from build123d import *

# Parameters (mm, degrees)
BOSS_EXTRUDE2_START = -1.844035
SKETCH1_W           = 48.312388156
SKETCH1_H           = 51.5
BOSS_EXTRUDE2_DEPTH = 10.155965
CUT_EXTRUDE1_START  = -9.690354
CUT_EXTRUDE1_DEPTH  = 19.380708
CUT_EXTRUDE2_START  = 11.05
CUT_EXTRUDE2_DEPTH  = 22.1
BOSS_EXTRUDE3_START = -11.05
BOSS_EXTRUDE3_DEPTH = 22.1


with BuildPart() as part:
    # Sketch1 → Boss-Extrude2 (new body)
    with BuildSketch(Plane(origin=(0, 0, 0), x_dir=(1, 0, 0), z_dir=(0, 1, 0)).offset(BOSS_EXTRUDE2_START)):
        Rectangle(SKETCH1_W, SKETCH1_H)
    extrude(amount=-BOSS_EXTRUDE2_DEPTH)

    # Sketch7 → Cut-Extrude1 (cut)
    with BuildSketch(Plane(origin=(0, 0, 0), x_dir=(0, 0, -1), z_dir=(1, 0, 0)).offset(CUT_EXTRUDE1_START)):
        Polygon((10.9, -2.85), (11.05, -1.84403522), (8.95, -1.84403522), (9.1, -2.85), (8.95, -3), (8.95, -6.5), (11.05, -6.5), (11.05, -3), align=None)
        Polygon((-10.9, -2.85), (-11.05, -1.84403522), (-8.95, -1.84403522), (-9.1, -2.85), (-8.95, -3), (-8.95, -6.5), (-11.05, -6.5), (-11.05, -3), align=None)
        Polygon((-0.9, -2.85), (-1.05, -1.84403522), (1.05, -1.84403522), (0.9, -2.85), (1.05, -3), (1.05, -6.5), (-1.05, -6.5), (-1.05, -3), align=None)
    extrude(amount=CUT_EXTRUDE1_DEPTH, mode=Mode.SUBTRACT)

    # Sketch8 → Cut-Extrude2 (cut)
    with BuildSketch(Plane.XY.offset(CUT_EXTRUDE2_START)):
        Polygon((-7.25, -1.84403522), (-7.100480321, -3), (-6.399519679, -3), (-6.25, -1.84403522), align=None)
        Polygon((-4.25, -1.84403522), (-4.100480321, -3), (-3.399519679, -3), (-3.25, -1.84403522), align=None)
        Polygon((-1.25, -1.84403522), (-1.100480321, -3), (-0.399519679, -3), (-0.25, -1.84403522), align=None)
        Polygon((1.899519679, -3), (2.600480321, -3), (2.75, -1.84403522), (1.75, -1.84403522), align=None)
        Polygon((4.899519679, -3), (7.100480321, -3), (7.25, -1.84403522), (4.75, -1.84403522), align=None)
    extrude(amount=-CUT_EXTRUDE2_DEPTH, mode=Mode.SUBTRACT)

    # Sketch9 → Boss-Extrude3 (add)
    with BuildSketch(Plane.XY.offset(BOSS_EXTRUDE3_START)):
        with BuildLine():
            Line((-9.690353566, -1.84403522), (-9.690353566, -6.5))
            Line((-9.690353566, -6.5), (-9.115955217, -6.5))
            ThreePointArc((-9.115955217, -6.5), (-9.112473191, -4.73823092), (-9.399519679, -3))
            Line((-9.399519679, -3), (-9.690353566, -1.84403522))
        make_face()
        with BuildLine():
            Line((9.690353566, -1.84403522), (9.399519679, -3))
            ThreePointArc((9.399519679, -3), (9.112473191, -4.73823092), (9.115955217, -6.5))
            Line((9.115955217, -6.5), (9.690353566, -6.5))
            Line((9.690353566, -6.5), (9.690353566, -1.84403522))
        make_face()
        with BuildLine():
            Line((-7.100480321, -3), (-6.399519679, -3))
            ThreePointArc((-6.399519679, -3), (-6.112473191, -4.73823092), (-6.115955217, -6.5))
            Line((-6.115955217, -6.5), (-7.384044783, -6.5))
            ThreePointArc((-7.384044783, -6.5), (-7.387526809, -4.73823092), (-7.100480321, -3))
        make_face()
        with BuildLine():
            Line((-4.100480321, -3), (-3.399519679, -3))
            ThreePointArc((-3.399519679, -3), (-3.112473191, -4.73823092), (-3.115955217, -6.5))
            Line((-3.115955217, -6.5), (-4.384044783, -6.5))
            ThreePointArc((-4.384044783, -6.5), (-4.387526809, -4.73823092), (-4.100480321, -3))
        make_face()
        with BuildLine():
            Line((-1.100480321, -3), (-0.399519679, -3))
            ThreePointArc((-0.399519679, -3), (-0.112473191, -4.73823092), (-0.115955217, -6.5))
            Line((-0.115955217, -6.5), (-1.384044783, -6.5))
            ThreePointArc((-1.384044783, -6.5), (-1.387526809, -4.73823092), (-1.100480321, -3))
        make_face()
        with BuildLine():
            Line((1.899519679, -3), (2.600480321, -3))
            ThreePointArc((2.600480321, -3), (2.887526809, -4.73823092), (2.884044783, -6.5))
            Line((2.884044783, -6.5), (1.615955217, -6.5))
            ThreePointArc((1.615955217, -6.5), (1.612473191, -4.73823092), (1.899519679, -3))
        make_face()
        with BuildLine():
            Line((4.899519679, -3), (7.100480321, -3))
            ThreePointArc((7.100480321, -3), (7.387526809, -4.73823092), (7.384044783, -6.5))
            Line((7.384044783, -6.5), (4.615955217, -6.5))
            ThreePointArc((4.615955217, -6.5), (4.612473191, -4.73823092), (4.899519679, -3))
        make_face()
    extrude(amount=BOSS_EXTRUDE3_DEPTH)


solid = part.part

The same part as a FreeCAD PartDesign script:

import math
import FreeCAD as App
import Part
import Sketcher

V = App.Vector

doc = App.newDocument("Part")
body = doc.addObject("PartDesign::Body", "Body")

# Sketch on XZ plane
sketch1 = body.newObject("Sketcher::SketchObject", "Sketch")
sketch1.AttachmentSupport = (doc.getObject("XZ_Plane"), [""])
sketch1.MapMode = "FlatFace"
sketch1.AttachmentOffset = App.Placement(V(0, 0, 1.844035), App.Rotation())
sketch1.addGeometry(Part.LineSegment(V(-24, -26, 0), V(-24, 26, 0)), False)
sketch1.addGeometry(Part.LineSegment(V(-24, 26, 0), V(24, 26, 0)), False)
sketch1.addGeometry(Part.LineSegment(V(24, 26, 0), V(24, -26, 0)), False)
sketch1.addGeometry(Part.LineSegment(V(24, -26, 0), V(-24, -26, 0)), False)
sketch1.addConstraint(Sketcher.Constraint("Coincident", 0, 2, 1, 1))
sketch1.addConstraint(Sketcher.Constraint("Coincident", 1, 2, 2, 1))
sketch1.addConstraint(Sketcher.Constraint("Coincident", 2, 2, 3, 1))
sketch1.addConstraint(Sketcher.Constraint("Coincident", 3, 2, 0, 1))
sketch1.addConstraint(Sketcher.Constraint("Vertical", 0))
sketch1.addConstraint(Sketcher.Constraint("Horizontal", 1))
sketch1.addConstraint(Sketcher.Constraint("Vertical", 2))
sketch1.addConstraint(Sketcher.Constraint("Horizontal", 3))
sketch1.addConstraint(Sketcher.Constraint("Symmetric", 0, 2, 2, 2, -1, 1))
sketch1.addConstraint(Sketcher.Constraint("DistanceY", 0, 1, 0, 2, 51.5))
sketch1.addConstraint(Sketcher.Constraint("DistanceX", 1, 1, 1, 2, 48.312388))
pad1 = body.newObject("PartDesign::Pad", "Pad")
pad1.Profile = sketch1
pad1.Length = 10.155965

# Sketch on YZ plane
sketch2 = body.newObject("Sketcher::SketchObject", "Sketch001")
sketch2.AttachmentSupport = (doc.getObject("YZ_Plane"), [""])
sketch2.MapMode = "FlatFace"
sketch2.AttachmentOffset = App.Placement(V(0, 0, -9.690354), App.Rotation())
sketch2.addGeometry(Part.LineSegment(V(-2.85, -10.9, 0), V(-1.84, -11.05, 0)), False)
sketch2.addGeometry(Part.LineSegment(V(-1.84, -11.05, 0), V(-1.84, -8.95, 0)), False)
sketch2.addGeometry(Part.LineSegment(V(-1.84, -8.95, 0), V(-2.85, -9.1, 0)), False)
sketch2.addGeometry(Part.LineSegment(V(-2.85, -9.1, 0), V(-3, -8.95, 0)), False)
sketch2.addGeometry(Part.LineSegment(V(-3, -8.95, 0), V(-6.5, -8.95, 0)), False)
sketch2.addGeometry(Part.LineSegment(V(-6.5, -8.95, 0), V(-6.5, -11.05, 0)), False)
sketch2.addGeometry(Part.LineSegment(V(-6.5, -11.05, 0), V(-3, -11.05, 0)), False)
sketch2.addGeometry(Part.LineSegment(V(-3, -11.05, 0), V(-2.85, -10.9, 0)), False)
sketch2.addGeometry(Part.LineSegment(V(-1.84, 11.05, 0), V(-2.85, 10.9, 0)), False)
sketch2.addGeometry(Part.LineSegment(V(-2.85, 10.9, 0), V(-3, 11.05, 0)), False)
sketch2.addGeometry(Part.LineSegment(V(-3, 11.05, 0), V(-6.5, 11.05, 0)), False)
sketch2.addGeometry(Part.LineSegment(V(-6.5, 11.05, 0), V(-6.5, 8.95, 0)), False)
sketch2.addGeometry(Part.LineSegment(V(-6.5, 8.95, 0), V(-3, 8.95, 0)), False)
sketch2.addGeometry(Part.LineSegment(V(-3, 8.95, 0), V(-2.85, 9.1, 0)), False)
sketch2.addGeometry(Part.LineSegment(V(-2.85, 9.1, 0), V(-1.84, 8.95, 0)), False)
sketch2.addGeometry(Part.LineSegment(V(-1.84, 8.95, 0), V(-1.84, 11.05, 0)), False)
sketch2.addGeometry(Part.LineSegment(V(-1.84, 1.05, 0), V(-2.85, 0.9, 0)), False)
sketch2.addGeometry(Part.LineSegment(V(-2.85, 0.9, 0), V(-3, 1.05, 0)), False)
sketch2.addGeometry(Part.LineSegment(V(-3, 1.05, 0), V(-6.5, 1.05, 0)), False)
sketch2.addGeometry(Part.LineSegment(V(-6.5, 1.05, 0), V(-6.5, -1.05, 0)), False)
sketch2.addGeometry(Part.LineSegment(V(-6.5, -1.05, 0), V(-3, -1.05, 0)), False)
sketch2.addGeometry(Part.LineSegment(V(-3, -1.05, 0), V(-2.85, -0.9, 0)), False)
sketch2.addGeometry(Part.LineSegment(V(-2.85, -0.9, 0), V(-1.84, -1.05, 0)), False)
sketch2.addGeometry(Part.LineSegment(V(-1.84, -1.05, 0), V(-1.84, 1.05, 0)), False)
sketch2.addConstraint(Sketcher.Constraint("Coincident", 0, 2, 1, 1))
sketch2.addConstraint(Sketcher.Constraint("Coincident", 1, 2, 2, 1))
sketch2.addConstraint(Sketcher.Constraint("Coincident", 2, 2, 3, 1))
sketch2.addConstraint(Sketcher.Constraint("Coincident", 3, 2, 4, 1))
sketch2.addConstraint(Sketcher.Constraint("Coincident", 4, 2, 5, 1))
sketch2.addConstraint(Sketcher.Constraint("Coincident", 5, 2, 6, 1))
sketch2.addConstraint(Sketcher.Constraint("Coincident", 6, 2, 7, 1))
sketch2.addConstraint(Sketcher.Constraint("Coincident", 7, 2, 0, 1))
sketch2.addConstraint(Sketcher.Constraint("Coincident", 8, 2, 9, 1))
sketch2.addConstraint(Sketcher.Constraint("Coincident", 9, 2, 10, 1))
sketch2.addConstraint(Sketcher.Constraint("Coincident", 10, 2, 11, 1))
sketch2.addConstraint(Sketcher.Constraint("Coincident", 11, 2, 12, 1))
sketch2.addConstraint(Sketcher.Constraint("Coincident", 12, 2, 13, 1))
sketch2.addConstraint(Sketcher.Constraint("Coincident", 13, 2, 14, 1))
sketch2.addConstraint(Sketcher.Constraint("Coincident", 14, 2, 15, 1))
sketch2.addConstraint(Sketcher.Constraint("Coincident", 15, 2, 8, 1))
sketch2.addConstraint(Sketcher.Constraint("Coincident", 16, 2, 17, 1))
sketch2.addConstraint(Sketcher.Constraint("Coincident", 17, 2, 18, 1))
sketch2.addConstraint(Sketcher.Constraint("Coincident", 18, 2, 19, 1))
sketch2.addConstraint(Sketcher.Constraint("Coincident", 19, 2, 20, 1))
sketch2.addConstraint(Sketcher.Constraint("Coincident", 20, 2, 21, 1))
sketch2.addConstraint(Sketcher.Constraint("Coincident", 21, 2, 22, 1))
sketch2.addConstraint(Sketcher.Constraint("Coincident", 22, 2, 23, 1))
sketch2.addConstraint(Sketcher.Constraint("Coincident", 23, 2, 16, 1))
sketch2.addConstraint(Sketcher.Constraint("Vertical", 1))
sketch2.addConstraint(Sketcher.Constraint("Horizontal", 4))
sketch2.addConstraint(Sketcher.Constraint("Vertical", 5))
sketch2.addConstraint(Sketcher.Constraint("Horizontal", 6))
sketch2.addConstraint(Sketcher.Constraint("Horizontal", 10))
sketch2.addConstraint(Sketcher.Constraint("Vertical", 11))
sketch2.addConstraint(Sketcher.Constraint("Horizontal", 12))
sketch2.addConstraint(Sketcher.Constraint("Vertical", 15))
sketch2.addConstraint(Sketcher.Constraint("Horizontal", 18))
sketch2.addConstraint(Sketcher.Constraint("Vertical", 19))
sketch2.addConstraint(Sketcher.Constraint("Horizontal", 20))
sketch2.addConstraint(Sketcher.Constraint("Vertical", 23))
sketch2.addConstraint(Sketcher.Constraint("Symmetric", 7, 2, 8, 2, -1))
sketch2.addConstraint(Sketcher.Constraint("Symmetric", 6, 2, 9, 2, -1))
sketch2.addConstraint(Sketcher.Constraint("Symmetric", 4, 2, 11, 2, -1))
sketch2.addConstraint(Sketcher.Constraint("Symmetric", 2, 2, 13, 2, -1))
sketch2.addConstraint(Sketcher.Constraint("Symmetric", 1, 2, 14, 2, -1))
sketch2.addConstraint(Sketcher.Constraint("Symmetric", 17, 2, 20, 2, -1))
sketch2.addConstraint(Sketcher.Constraint("Symmetric", 16, 2, 21, 2, -1))
sketch2.addConstraint(Sketcher.Constraint("Perpendicular", 3, 7))
sketch2.addConstraint(Sketcher.Constraint("Parallel", 2, 8))
sketch2.addConstraint(Sketcher.Constraint("Perpendicular", 7, 9))
sketch2.addConstraint(Sketcher.Constraint("Perpendicular", 9, 13))
sketch2.addConstraint(Sketcher.Constraint("Parallel", 0, 14))
sketch2.addConstraint(Sketcher.Constraint("Parallel", 8, 16))
sketch2.addConstraint(Sketcher.Constraint("Perpendicular", 13, 17))
sketch2.addConstraint(Sketcher.Constraint("Parallel", 14, 22))
sketch2.addConstraint(Sketcher.Constraint("Horizontal", 1, 2, 3, 2))
sketch2.addConstraint(Sketcher.Constraint("Horizontal", 0, 2, 5, 2))
sketch2.addConstraint(Sketcher.Constraint("Horizontal", 20, 2, 22, 2))
sketch2.addConstraint(Sketcher.Constraint("Vertical", 3, 2, 6, 2))
sketch2.addConstraint(Sketcher.Constraint("Vertical", 13, 2, 16, 2))
sketch2.addConstraint(Sketcher.Constraint("Vertical", 12, 2, 17, 2))
sketch2.addConstraint(Sketcher.Constraint("Vertical", 11, 2, 18, 2))
sketch2.addConstraint(Sketcher.Constraint("Equal", 15, 19))
sketch2.addConstraint(Sketcher.Constraint("DistanceX", 4, 2, 4, 1, 3.5))
sketch2.addConstraint(Sketcher.Constraint("DistanceY", 1, 1, 1, 2, 2.1))
sketch2.addConstraint(Sketcher.Constraint("DistanceX", 3, 2, -1, 1, 3.0))
sketch2.addConstraint(Sketcher.Constraint("DistanceY", 2, 2, 8, 2, 20.0))
sketch2.addConstraint(Sketcher.Constraint("DistanceY", 2, 2, -1, 1, 9.1))
sketch2.addConstraint(Sketcher.Constraint("Distance", 0, 1.017087))
pocket1 = body.newObject("PartDesign::Pocket", "Pocket")
pocket1.Profile = sketch2
pocket1.Length = 19.380708
pocket1.Reversed = True

# Sketch on XY plane
sketch3 = body.newObject("Sketcher::SketchObject", "Sketch002")
sketch3.AttachmentSupport = (doc.getObject("XY_Plane"), [""])
sketch3.MapMode = "FlatFace"
sketch3.AttachmentOffset = App.Placement(V(0, 0, 11.05), App.Rotation())
sketch3.addGeometry(Part.LineSegment(V(-7.2, -1.8, 0), V(-7.1, -3, 0)), False)
sketch3.addGeometry(Part.LineSegment(V(-7.1, -3, 0), V(-6.4, -3, 0)), False)
sketch3.addGeometry(Part.LineSegment(V(-6.4, -3, 0), V(-6.2, -1.8, 0)), False)
sketch3.addGeometry(Part.LineSegment(V(-6.2, -1.8, 0), V(-7.2, -1.8, 0)), False)
sketch3.addGeometry(Part.LineSegment(V(-4.2, -1.8, 0), V(-4.1, -3, 0)), False)
sketch3.addGeometry(Part.LineSegment(V(-4.1, -3, 0), V(-3.4, -3, 0)), False)
sketch3.addGeometry(Part.LineSegment(V(-3.4, -3, 0), V(-3.2, -1.8, 0)), False)
sketch3.addGeometry(Part.LineSegment(V(-3.2, -1.8, 0), V(-4.2, -1.8, 0)), False)
sketch3.addGeometry(Part.LineSegment(V(-1.2, -1.8, 0), V(-1.1, -3, 0)), False)
sketch3.addGeometry(Part.LineSegment(V(-1.1, -3, 0), V(-0.4, -3, 0)), False)
sketch3.addGeometry(Part.LineSegment(V(-0.4, -3, 0), V(-0.2, -1.8, 0)), False)
sketch3.addGeometry(Part.LineSegment(V(-0.2, -1.8, 0), V(-1.2, -1.8, 0)), False)
sketch3.addGeometry(Part.LineSegment(V(1.9, -3, 0), V(2.6, -3, 0)), False)
sketch3.addGeometry(Part.LineSegment(V(2.6, -3, 0), V(2.8, -1.8, 0)), False)
sketch3.addGeometry(Part.LineSegment(V(2.8, -1.8, 0), V(1.8, -1.8, 0)), False)
sketch3.addGeometry(Part.LineSegment(V(1.8, -1.8, 0), V(1.9, -3, 0)), False)
sketch3.addGeometry(Part.LineSegment(V(4.9, -3, 0), V(7.1, -3, 0)), False)
sketch3.addGeometry(Part.LineSegment(V(7.1, -3, 0), V(7.2, -1.8, 0)), False)
sketch3.addGeometry(Part.LineSegment(V(7.2, -1.8, 0), V(4.8, -1.8, 0)), False)
sketch3.addGeometry(Part.LineSegment(V(4.8, -1.8, 0), V(4.9, -3, 0)), False)
sketch3.addConstraint(Sketcher.Constraint("Coincident", 0, 2, 1, 1))
sketch3.addConstraint(Sketcher.Constraint("Coincident", 1, 2, 2, 1))
sketch3.addConstraint(Sketcher.Constraint("Coincident", 2, 2, 3, 1))
sketch3.addConstraint(Sketcher.Constraint("Coincident", 3, 2, 0, 1))
sketch3.addConstraint(Sketcher.Constraint("Coincident", 4, 2, 5, 1))
sketch3.addConstraint(Sketcher.Constraint("Coincident", 5, 2, 6, 1))
sketch3.addConstraint(Sketcher.Constraint("Coincident", 6, 2, 7, 1))
sketch3.addConstraint(Sketcher.Constraint("Coincident", 7, 2, 4, 1))
sketch3.addConstraint(Sketcher.Constraint("Coincident", 8, 2, 9, 1))
sketch3.addConstraint(Sketcher.Constraint("Coincident", 9, 2, 10, 1))
sketch3.addConstraint(Sketcher.Constraint("Coincident", 10, 2, 11, 1))
sketch3.addConstraint(Sketcher.Constraint("Coincident", 11, 2, 8, 1))
sketch3.addConstraint(Sketcher.Constraint("Coincident", 12, 2, 13, 1))
sketch3.addConstraint(Sketcher.Constraint("Coincident", 13, 2, 14, 1))
sketch3.addConstraint(Sketcher.Constraint("Coincident", 14, 2, 15, 1))
sketch3.addConstraint(Sketcher.Constraint("Coincident", 15, 2, 12, 1))
sketch3.addConstraint(Sketcher.Constraint("Coincident", 16, 2, 17, 1))
sketch3.addConstraint(Sketcher.Constraint("Coincident", 17, 2, 18, 1))
sketch3.addConstraint(Sketcher.Constraint("Coincident", 18, 2, 19, 1))
sketch3.addConstraint(Sketcher.Constraint("Coincident", 19, 2, 16, 1))
sketch3.addConstraint(Sketcher.Constraint("Horizontal", 1))
sketch3.addConstraint(Sketcher.Constraint("Horizontal", 3))
sketch3.addConstraint(Sketcher.Constraint("Horizontal", 5))
sketch3.addConstraint(Sketcher.Constraint("Horizontal", 7))
sketch3.addConstraint(Sketcher.Constraint("Horizontal", 9))
sketch3.addConstraint(Sketcher.Constraint("Horizontal", 11))
sketch3.addConstraint(Sketcher.Constraint("Horizontal", 12))
sketch3.addConstraint(Sketcher.Constraint("Horizontal", 14))
sketch3.addConstraint(Sketcher.Constraint("Horizontal", 16))
sketch3.addConstraint(Sketcher.Constraint("Horizontal", 18))
sketch3.addConstraint(Sketcher.Constraint("Symmetric", 0, 2, 16, 2, -2))
sketch3.addConstraint(Sketcher.Constraint("Symmetric", 3, 2, 17, 2, -2))
sketch3.addConstraint(Sketcher.Constraint("Parallel", 0, 4))
sketch3.addConstraint(Sketcher.Constraint("Parallel", 2, 6))
sketch3.addConstraint(Sketcher.Constraint("Parallel", 4, 8))
sketch3.addConstraint(Sketcher.Constraint("Parallel", 6, 10))
sketch3.addConstraint(Sketcher.Constraint("Parallel", 10, 13))
sketch3.addConstraint(Sketcher.Constraint("Parallel", 8, 15))
sketch3.addConstraint(Sketcher.Constraint("Parallel", 13, 17))
sketch3.addConstraint(Sketcher.Constraint("Parallel", 15, 19))
sketch3.addConstraint(Sketcher.Constraint("Horizontal", 1, 2, 4, 2))
sketch3.addConstraint(Sketcher.Constraint("Horizontal", 3, 2, 6, 2))
sketch3.addConstraint(Sketcher.Constraint("Horizontal", 5, 2, 8, 2))
sketch3.addConstraint(Sketcher.Constraint("Horizontal", 7, 2, 10, 2))
sketch3.addConstraint(Sketcher.Constraint("Horizontal", 9, 2, 12, 2))
sketch3.addConstraint(Sketcher.Constraint("Horizontal", 11, 2, 13, 2))
sketch3.addConstraint(Sketcher.Constraint("Equal", 1, 5))
sketch3.addConstraint(Sketcher.Constraint("Equal", 5, 9))
sketch3.addConstraint(Sketcher.Constraint("Equal", 9, 12))
sketch3.addConstraint(Sketcher.Constraint("DistanceX", 3, 2, 3, 1, 1.0))
sketch3.addConstraint(Sketcher.Constraint("DistanceX", 18, 2, 18, 1, 2.5))
sketch3.addConstraint(Sketcher.Constraint("DistanceY", 0, 2, -1, 1, 3.0))
sketch3.addConstraint(Sketcher.Constraint("DistanceX", 0, 2, 4, 2, 3.0))
sketch3.addConstraint(Sketcher.Constraint("DistanceX", 4, 2, 8, 2, 3.0))
sketch3.addConstraint(Sketcher.Constraint("DistanceX", 9, 2, 12, 2, 3.0))
sketch3.addConstraint(Sketcher.Constraint("DistanceX", 13, 2, 18, 2, 2.0))
sketch3.addConstraint(Sketcher.Constraint("DistanceX", 1, 1, 1, 2, 0.700961))
sketch3.addConstraint(Sketcher.Constraint("Distance", 0, 1.165595))
pocket2 = body.newObject("PartDesign::Pocket", "Pocket001")
pocket2.Profile = sketch3
pocket2.Length = 22.1

# Sketch on XY plane
sketch4 = body.newObject("Sketcher::SketchObject", "Sketch003")
sketch4.AttachmentSupport = (doc.getObject("XY_Plane"), [""])
sketch4.MapMode = "FlatFace"
sketch4.AttachmentOffset = App.Placement(V(0, 0, -11.05), App.Rotation())
sketch4.addGeometry(Part.LineSegment(V(-9.7, -1.8, 0), V(-9.7, -6.5, 0)), False)
sketch4.addGeometry(Part.LineSegment(V(-9.7, -6.5, 0), V(-9.1, -6.5, 0)), False)
sketch4.addGeometry(Part.ArcOfCircle(Part.Circle(V(-19.7, -5.6, 0), V(0, 0, 1), 10.6), math.radians(-4.86), math.radians(14.12)), False)
sketch4.addGeometry(Part.LineSegment(V(-9.4, -3, 0), V(-9.7, -1.8, 0)), False)
sketch4.addGeometry(Part.LineSegment(V(9.7, -1.8, 0), V(9.4, -3, 0)), False)
sketch4.addGeometry(Part.ArcOfCircle(Part.Circle(V(19.7, -5.6, 0), V(0, 0, 1), 10.6), math.radians(165.88), math.radians(184.86)), False)
sketch4.addGeometry(Part.LineSegment(V(9.1, -6.5, 0), V(9.7, -6.5, 0)), False)
sketch4.addGeometry(Part.LineSegment(V(9.7, -6.5, 0), V(9.7, -1.8, 0)), False)
sketch4.addGeometry(Part.LineSegment(V(-6.4, -3, 0), V(-7.1, -3, 0)), False)
sketch4.addGeometry(Part.ArcOfCircle(Part.Circle(V(3.2, -5.6, 0), V(0, 0, 1), 10.6), math.radians(165.88), math.radians(184.86)), False)
sketch4.addGeometry(Part.LineSegment(V(-7.4, -6.5, 0), V(-6.1, -6.5, 0)), False)
sketch4.addGeometry(Part.ArcOfCircle(Part.Circle(V(-16.7, -5.6, 0), V(0, 0, 1), 10.6), math.radians(-4.86), math.radians(14.12)), False)
sketch4.addGeometry(Part.LineSegment(V(-3.4, -3, 0), V(-4.1, -3, 0)), False)
sketch4.addGeometry(Part.ArcOfCircle(Part.Circle(V(6.2, -5.6, 0), V(0, 0, 1), 10.6), math.radians(165.88), math.radians(184.86)), False)
sketch4.addGeometry(Part.LineSegment(V(-4.4, -6.5, 0), V(-3.1, -6.5, 0)), False)
sketch4.addGeometry(Part.ArcOfCircle(Part.Circle(V(-13.7, -5.6, 0), V(0, 0, 1), 10.6), math.radians(-4.86), math.radians(14.12)), False)
sketch4.addGeometry(Part.LineSegment(V(-0.4, -3, 0), V(-1.1, -3, 0)), False)
sketch4.addGeometry(Part.ArcOfCircle(Part.Circle(V(9.2, -5.6, 0), V(0, 0, 1), 10.6), math.radians(165.88), math.radians(184.86)), False)
sketch4.addGeometry(Part.LineSegment(V(-1.4, -6.5, 0), V(-0.1, -6.5, 0)), False)
sketch4.addGeometry(Part.ArcOfCircle(Part.Circle(V(-10.7, -5.6, 0), V(0, 0, 1), 10.6), math.radians(-4.86), math.radians(14.12)), False)
sketch4.addGeometry(Part.LineSegment(V(2.6, -3, 0), V(1.9, -3, 0)), False)
sketch4.addGeometry(Part.ArcOfCircle(Part.Circle(V(12.2, -5.6, 0), V(0, 0, 1), 10.6), math.radians(165.88), math.radians(184.86)), False)
sketch4.addGeometry(Part.LineSegment(V(1.6, -6.5, 0), V(2.9, -6.5, 0)), False)
sketch4.addGeometry(Part.ArcOfCircle(Part.Circle(V(-7.7, -5.6, 0), V(0, 0, 1), 10.6), math.radians(-4.86), math.radians(14.12)), False)
sketch4.addGeometry(Part.LineSegment(V(7.1, -3, 0), V(4.9, -3, 0)), False)
sketch4.addGeometry(Part.ArcOfCircle(Part.Circle(V(15.2, -5.6, 0), V(0, 0, 1), 10.6), math.radians(165.88), math.radians(184.86)), False)
sketch4.addGeometry(Part.LineSegment(V(4.6, -6.5, 0), V(7.4, -6.5, 0)), False)
sketch4.addGeometry(Part.ArcOfCircle(Part.Circle(V(-3.2, -5.6, 0), V(0, 0, 1), 10.6), math.radians(-4.86), math.radians(14.12)), False)
sketch4.addConstraint(Sketcher.Constraint("Coincident", 0, 2, 1, 1))
sketch4.addConstraint(Sketcher.Constraint("Coincident", 1, 2, 2, 1))
sketch4.addConstraint(Sketcher.Constraint("Tangent", 2, 2, 3, 1))
sketch4.addConstraint(Sketcher.Constraint("Coincident", 3, 2, 0, 1))
sketch4.addConstraint(Sketcher.Constraint("Tangent", 4, 2, 5, 1))
sketch4.addConstraint(Sketcher.Constraint("Coincident", 5, 2, 6, 1))
sketch4.addConstraint(Sketcher.Constraint("Coincident", 6, 2, 7, 1))
sketch4.addConstraint(Sketcher.Constraint("Coincident", 7, 2, 4, 1))
sketch4.addConstraint(Sketcher.Constraint("Coincident", 8, 2, 9, 1))
sketch4.addConstraint(Sketcher.Constraint("Coincident", 9, 2, 10, 1))
sketch4.addConstraint(Sketcher.Constraint("Coincident", 10, 2, 11, 1))
sketch4.addConstraint(Sketcher.Constraint("Coincident", 11, 2, 8, 1))
sketch4.addConstraint(Sketcher.Constraint("Coincident", 12, 2, 13, 1))
sketch4.addConstraint(Sketcher.Constraint("Coincident", 13, 2, 14, 1))
sketch4.addConstraint(Sketcher.Constraint("Coincident", 14, 2, 15, 1))
sketch4.addConstraint(Sketcher.Constraint("Coincident", 15, 2, 12, 1))
sketch4.addConstraint(Sketcher.Constraint("Coincident", 16, 2, 17, 1))
sketch4.addConstraint(Sketcher.Constraint("Coincident", 17, 2, 18, 1))
sketch4.addConstraint(Sketcher.Constraint("Coincident", 18, 2, 19, 1))
sketch4.addConstraint(Sketcher.Constraint("Coincident", 19, 2, 16, 1))
sketch4.addConstraint(Sketcher.Constraint("Coincident", 20, 2, 21, 1))
sketch4.addConstraint(Sketcher.Constraint("Coincident", 21, 2, 22, 1))
sketch4.addConstraint(Sketcher.Constraint("Coincident", 22, 2, 23, 1))
sketch4.addConstraint(Sketcher.Constraint("Coincident", 23, 2, 20, 1))
sketch4.addConstraint(Sketcher.Constraint("Coincident", 24, 2, 25, 1))
sketch4.addConstraint(Sketcher.Constraint("Coincident", 25, 2, 26, 1))
sketch4.addConstraint(Sketcher.Constraint("Coincident", 26, 2, 27, 1))
sketch4.addConstraint(Sketcher.Constraint("Coincident", 27, 2, 24, 1))
sketch4.addConstraint(Sketcher.Constraint("Vertical", 0))
sketch4.addConstraint(Sketcher.Constraint("Horizontal", 1))
sketch4.addConstraint(Sketcher.Constraint("Horizontal", 6))
sketch4.addConstraint(Sketcher.Constraint("Vertical", 7))
sketch4.addConstraint(Sketcher.Constraint("Horizontal", 8))
sketch4.addConstraint(Sketcher.Constraint("Horizontal", 10))
sketch4.addConstraint(Sketcher.Constraint("Horizontal", 12))
sketch4.addConstraint(Sketcher.Constraint("Horizontal", 14))
sketch4.addConstraint(Sketcher.Constraint("Horizontal", 16))
sketch4.addConstraint(Sketcher.Constraint("Horizontal", 18))
sketch4.addConstraint(Sketcher.Constraint("Horizontal", 20))
sketch4.addConstraint(Sketcher.Constraint("Horizontal", 22))
sketch4.addConstraint(Sketcher.Constraint("Horizontal", 24))
sketch4.addConstraint(Sketcher.Constraint("Horizontal", 26))
sketch4.addConstraint(Sketcher.Constraint("Equal", 2, 5))
sketch4.addConstraint(Sketcher.Constraint("Equal", 5, 9))
sketch4.addConstraint(Sketcher.Constraint("Equal", 9, 11))
sketch4.addConstraint(Sketcher.Constraint("Equal", 11, 13))
sketch4.addConstraint(Sketcher.Constraint("Equal", 13, 15))
sketch4.addConstraint(Sketcher.Constraint("Equal", 15, 17))
sketch4.addConstraint(Sketcher.Constraint("Equal", 17, 19))
sketch4.addConstraint(Sketcher.Constraint("Equal", 19, 21))
sketch4.addConstraint(Sketcher.Constraint("Equal", 21, 23))
sketch4.addConstraint(Sketcher.Constraint("Equal", 23, 25))
sketch4.addConstraint(Sketcher.Constraint("Equal", 25, 27))
sketch4.addConstraint(Sketcher.Constraint("Symmetric", 2, 3, 5, 3, -2))
sketch4.addConstraint(Sketcher.Constraint("Symmetric", 9, 3, 27, 3, -2))
sketch4.addConstraint(Sketcher.Constraint("Symmetric", 0, 2, 6, 2, -2))
sketch4.addConstraint(Sketcher.Constraint("Horizontal", 5, 3, 9, 3))
sketch4.addConstraint(Sketcher.Constraint("Horizontal", 9, 3, 11, 3))
sketch4.addConstraint(Sketcher.Constraint("Horizontal", 11, 3, 13, 3))
sketch4.addConstraint(Sketcher.Constraint("Horizontal", 13, 3, 15, 3))
sketch4.addConstraint(Sketcher.Constraint("Horizontal", 15, 3, 17, 3))
sketch4.addConstraint(Sketcher.Constraint("Horizontal", 17, 3, 19, 3))
sketch4.addConstraint(Sketcher.Constraint("Horizontal", 19, 3, 21, 3))
sketch4.addConstraint(Sketcher.Constraint("Horizontal", 21, 3, 23, 3))
sketch4.addConstraint(Sketcher.Constraint("Horizontal", 23, 3, 25, 3))
sketch4.addConstraint(Sketcher.Constraint("Horizontal", 2, 2, 4, 2))
sketch4.addConstraint(Sketcher.Constraint("Horizontal", 4, 2, 8, 2))
sketch4.addConstraint(Sketcher.Constraint("Horizontal", 6, 2, 9, 2))
sketch4.addConstraint(Sketcher.Constraint("Horizontal", 11, 2, 12, 2))
sketch4.addConstraint(Sketcher.Constraint("Horizontal", 10, 2, 13, 2))
sketch4.addConstraint(Sketcher.Constraint("Horizontal", 15, 2, 16, 2))
sketch4.addConstraint(Sketcher.Constraint("Horizontal", 14, 2, 17, 2))
sketch4.addConstraint(Sketcher.Constraint("Horizontal", 19, 2, 20, 2))
sketch4.addConstraint(Sketcher.Constraint("Horizontal", 18, 2, 21, 2))
sketch4.addConstraint(Sketcher.Constraint("Horizontal", 23, 2, 24, 2))
sketch4.addConstraint(Sketcher.Constraint("Horizontal", 22, 2, 25, 2))
sketch4.addConstraint(Sketcher.Constraint("Equal", 8, 12))
sketch4.addConstraint(Sketcher.Constraint("Equal", 12, 16))
sketch4.addConstraint(Sketcher.Constraint("Equal", 16, 20))
sketch4.addConstraint(Sketcher.Constraint("DistanceY", 2, 2, -1, 1, 3.0))
sketch4.addConstraint(Sketcher.Constraint("DistanceX", 2, 3, 11, 3, 3.0))
sketch4.addConstraint(Sketcher.Constraint("DistanceX", 9, 3, 13, 3, 3.0))
sketch4.addConstraint(Sketcher.Constraint("DistanceX", 13, 3, 17, 3, 3.0))
sketch4.addConstraint(Sketcher.Constraint("DistanceX", 17, 3, 21, 3, 3.0))
sketch4.addConstraint(Sketcher.Constraint("DistanceX", 21, 3, 25, 3, 3.0))
sketch4.addConstraint(Sketcher.Constraint("DistanceY", 0, 2, -1, 1, 6.5))
sketch4.addConstraint(Sketcher.Constraint("DistanceX", 9, 3, 5, 3, 16.5))
sketch4.addConstraint(Sketcher.Constraint("DistanceX", 1, 1, 1, 2, 0.574398))
sketch4.addConstraint(Sketcher.Constraint("Radius", 2, 10.648543))
sketch4.addConstraint(Sketcher.Constraint("DistanceX", 8, 2, 8, 1, 0.700961))
sketch4.addConstraint(Sketcher.Constraint("DistanceX", 10, 1, 10, 2, 1.26809))
pad2 = body.newObject("PartDesign::Pad", "Pad001")
pad2.Profile = sketch4
pad2.Length = 22.1

doc.recompute()
